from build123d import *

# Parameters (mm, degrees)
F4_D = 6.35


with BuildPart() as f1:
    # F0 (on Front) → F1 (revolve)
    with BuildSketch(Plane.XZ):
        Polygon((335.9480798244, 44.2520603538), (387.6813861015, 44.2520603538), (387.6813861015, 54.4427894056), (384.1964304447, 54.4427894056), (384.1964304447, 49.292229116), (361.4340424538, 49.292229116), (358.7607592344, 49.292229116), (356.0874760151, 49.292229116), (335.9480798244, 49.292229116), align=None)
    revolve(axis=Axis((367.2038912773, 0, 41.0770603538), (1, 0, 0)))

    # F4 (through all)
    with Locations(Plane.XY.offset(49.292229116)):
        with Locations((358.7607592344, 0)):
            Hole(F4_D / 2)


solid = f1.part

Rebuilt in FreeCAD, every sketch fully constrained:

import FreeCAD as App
import Part
import Sketcher
from FreeCAD import Vector
Q = App.Units.Quantity


def add_polygon(sketch, points):
    """Adds a closed chain of lines whose ends are joined by coincident constraints."""
    first, n = sketch.GeometryCount, len(points)
    for a, b in zip(points, points[1:] + points[:1]):
        sketch.addGeometry(Part.LineSegment(App.Vector(*a, 0), App.Vector(*b, 0)), False)
    for i in range(n):
        sketch.addConstraint(Sketcher.Constraint("Coincident", first + i, 2, first + (i + 1) % n, 1))

doc = App.newDocument("Part")
body = doc.addObject("PartDesign::Body", "Body")

sketch1 = body.newObject("Sketcher::SketchObject", "Sketch")
sketch1.AttachmentSupport = (doc.getObject("XZ_Plane"), [""])
sketch1.MapMode = "FlatFace"
add_polygon(sketch1, [(335.94808, 44.25206), (387.681386, 44.25206), (387.681386, 54.442789), (384.19643, 54.442789), (384.19643, 49.292229), (335.94808, 49.292229)])
sketch1.addGeometry(Part.LineSegment(Vector(335.94808, 41.07706, 0), Vector(387.681386, 41.07706, 0)), True)
sketch1.addConstraint([
    Sketcher.Constraint("Horizontal", 0),
    Sketcher.Constraint("Vertical", 1),
    Sketcher.Constraint("Horizontal", 2),
    Sketcher.Constraint("Vertical", 3),
    Sketcher.Constraint("Horizontal", 4),
    Sketcher.Constraint("Vertical", 5),
    Sketcher.Constraint("Horizontal", 6),
    Sketcher.Constraint("Vertical", 5, 2, 6, 1),
    Sketcher.Constraint("Vertical", 1, 2, 6, 2),
    Sketcher.Constraint("DistanceY", 6, 1, 5, 2, Q("0.125 in")),
    Sketcher.Constraint("DistanceX", 4, 2, 4, 1, 48.248351),
    Sketcher.Constraint("DistanceY", 1, 1, 1, 2, 10.190729),
    Sketcher.Constraint("DistanceY", 3, 2, 3, 1, 5.15056),
    Sketcher.Constraint("DistanceX", 0, 1, 0, 2, 51.733306),
    Sketcher.Constraint("DistanceY", -1, 1, 0, 2, 44.25206),
    Sketcher.Constraint("DistanceX", -1, 1, 2, 2, 384.19643),
])
revolution = body.newObject("PartDesign::Revolution", "Revolution")
revolution.Profile = sketch1
revolution.ReferenceAxis = (sketch1, ["Axis0"])
revolution.Angle = 360

sketch2 = body.newObject("Sketcher::SketchObject", "Sketch001")
sketch2.AttachmentSupport = (doc.getObject("XY_Plane"), [""])
sketch2.MapMode = "FlatFace"
sketch2.AttachmentOffset = App.Placement(Vector(0, 0, 49.292229), App.Rotation())
sketch2.addGeometry(Part.Circle(Vector(358.760759, 0, 0), Vector(0, 0, 1), 3.175), False)
sketch2.addConstraint([
    Sketcher.Constraint("PointOnObject", 0, 3, -1),
    Sketcher.Constraint("Diameter", 0, Q("0.25 in")),
    Sketcher.Constraint("DistanceX", -1, 1, 0, 3, 358.760759),
])
doc.recompute()
hole = body.newObject("PartDesign::Hole", "Hole")
hole.Profile = sketch2
hole.ThreadType = "None"
hole.Diameter = Q("0.25 in")
hole.DepthType = "ThroughAll"

doc.recompute()
